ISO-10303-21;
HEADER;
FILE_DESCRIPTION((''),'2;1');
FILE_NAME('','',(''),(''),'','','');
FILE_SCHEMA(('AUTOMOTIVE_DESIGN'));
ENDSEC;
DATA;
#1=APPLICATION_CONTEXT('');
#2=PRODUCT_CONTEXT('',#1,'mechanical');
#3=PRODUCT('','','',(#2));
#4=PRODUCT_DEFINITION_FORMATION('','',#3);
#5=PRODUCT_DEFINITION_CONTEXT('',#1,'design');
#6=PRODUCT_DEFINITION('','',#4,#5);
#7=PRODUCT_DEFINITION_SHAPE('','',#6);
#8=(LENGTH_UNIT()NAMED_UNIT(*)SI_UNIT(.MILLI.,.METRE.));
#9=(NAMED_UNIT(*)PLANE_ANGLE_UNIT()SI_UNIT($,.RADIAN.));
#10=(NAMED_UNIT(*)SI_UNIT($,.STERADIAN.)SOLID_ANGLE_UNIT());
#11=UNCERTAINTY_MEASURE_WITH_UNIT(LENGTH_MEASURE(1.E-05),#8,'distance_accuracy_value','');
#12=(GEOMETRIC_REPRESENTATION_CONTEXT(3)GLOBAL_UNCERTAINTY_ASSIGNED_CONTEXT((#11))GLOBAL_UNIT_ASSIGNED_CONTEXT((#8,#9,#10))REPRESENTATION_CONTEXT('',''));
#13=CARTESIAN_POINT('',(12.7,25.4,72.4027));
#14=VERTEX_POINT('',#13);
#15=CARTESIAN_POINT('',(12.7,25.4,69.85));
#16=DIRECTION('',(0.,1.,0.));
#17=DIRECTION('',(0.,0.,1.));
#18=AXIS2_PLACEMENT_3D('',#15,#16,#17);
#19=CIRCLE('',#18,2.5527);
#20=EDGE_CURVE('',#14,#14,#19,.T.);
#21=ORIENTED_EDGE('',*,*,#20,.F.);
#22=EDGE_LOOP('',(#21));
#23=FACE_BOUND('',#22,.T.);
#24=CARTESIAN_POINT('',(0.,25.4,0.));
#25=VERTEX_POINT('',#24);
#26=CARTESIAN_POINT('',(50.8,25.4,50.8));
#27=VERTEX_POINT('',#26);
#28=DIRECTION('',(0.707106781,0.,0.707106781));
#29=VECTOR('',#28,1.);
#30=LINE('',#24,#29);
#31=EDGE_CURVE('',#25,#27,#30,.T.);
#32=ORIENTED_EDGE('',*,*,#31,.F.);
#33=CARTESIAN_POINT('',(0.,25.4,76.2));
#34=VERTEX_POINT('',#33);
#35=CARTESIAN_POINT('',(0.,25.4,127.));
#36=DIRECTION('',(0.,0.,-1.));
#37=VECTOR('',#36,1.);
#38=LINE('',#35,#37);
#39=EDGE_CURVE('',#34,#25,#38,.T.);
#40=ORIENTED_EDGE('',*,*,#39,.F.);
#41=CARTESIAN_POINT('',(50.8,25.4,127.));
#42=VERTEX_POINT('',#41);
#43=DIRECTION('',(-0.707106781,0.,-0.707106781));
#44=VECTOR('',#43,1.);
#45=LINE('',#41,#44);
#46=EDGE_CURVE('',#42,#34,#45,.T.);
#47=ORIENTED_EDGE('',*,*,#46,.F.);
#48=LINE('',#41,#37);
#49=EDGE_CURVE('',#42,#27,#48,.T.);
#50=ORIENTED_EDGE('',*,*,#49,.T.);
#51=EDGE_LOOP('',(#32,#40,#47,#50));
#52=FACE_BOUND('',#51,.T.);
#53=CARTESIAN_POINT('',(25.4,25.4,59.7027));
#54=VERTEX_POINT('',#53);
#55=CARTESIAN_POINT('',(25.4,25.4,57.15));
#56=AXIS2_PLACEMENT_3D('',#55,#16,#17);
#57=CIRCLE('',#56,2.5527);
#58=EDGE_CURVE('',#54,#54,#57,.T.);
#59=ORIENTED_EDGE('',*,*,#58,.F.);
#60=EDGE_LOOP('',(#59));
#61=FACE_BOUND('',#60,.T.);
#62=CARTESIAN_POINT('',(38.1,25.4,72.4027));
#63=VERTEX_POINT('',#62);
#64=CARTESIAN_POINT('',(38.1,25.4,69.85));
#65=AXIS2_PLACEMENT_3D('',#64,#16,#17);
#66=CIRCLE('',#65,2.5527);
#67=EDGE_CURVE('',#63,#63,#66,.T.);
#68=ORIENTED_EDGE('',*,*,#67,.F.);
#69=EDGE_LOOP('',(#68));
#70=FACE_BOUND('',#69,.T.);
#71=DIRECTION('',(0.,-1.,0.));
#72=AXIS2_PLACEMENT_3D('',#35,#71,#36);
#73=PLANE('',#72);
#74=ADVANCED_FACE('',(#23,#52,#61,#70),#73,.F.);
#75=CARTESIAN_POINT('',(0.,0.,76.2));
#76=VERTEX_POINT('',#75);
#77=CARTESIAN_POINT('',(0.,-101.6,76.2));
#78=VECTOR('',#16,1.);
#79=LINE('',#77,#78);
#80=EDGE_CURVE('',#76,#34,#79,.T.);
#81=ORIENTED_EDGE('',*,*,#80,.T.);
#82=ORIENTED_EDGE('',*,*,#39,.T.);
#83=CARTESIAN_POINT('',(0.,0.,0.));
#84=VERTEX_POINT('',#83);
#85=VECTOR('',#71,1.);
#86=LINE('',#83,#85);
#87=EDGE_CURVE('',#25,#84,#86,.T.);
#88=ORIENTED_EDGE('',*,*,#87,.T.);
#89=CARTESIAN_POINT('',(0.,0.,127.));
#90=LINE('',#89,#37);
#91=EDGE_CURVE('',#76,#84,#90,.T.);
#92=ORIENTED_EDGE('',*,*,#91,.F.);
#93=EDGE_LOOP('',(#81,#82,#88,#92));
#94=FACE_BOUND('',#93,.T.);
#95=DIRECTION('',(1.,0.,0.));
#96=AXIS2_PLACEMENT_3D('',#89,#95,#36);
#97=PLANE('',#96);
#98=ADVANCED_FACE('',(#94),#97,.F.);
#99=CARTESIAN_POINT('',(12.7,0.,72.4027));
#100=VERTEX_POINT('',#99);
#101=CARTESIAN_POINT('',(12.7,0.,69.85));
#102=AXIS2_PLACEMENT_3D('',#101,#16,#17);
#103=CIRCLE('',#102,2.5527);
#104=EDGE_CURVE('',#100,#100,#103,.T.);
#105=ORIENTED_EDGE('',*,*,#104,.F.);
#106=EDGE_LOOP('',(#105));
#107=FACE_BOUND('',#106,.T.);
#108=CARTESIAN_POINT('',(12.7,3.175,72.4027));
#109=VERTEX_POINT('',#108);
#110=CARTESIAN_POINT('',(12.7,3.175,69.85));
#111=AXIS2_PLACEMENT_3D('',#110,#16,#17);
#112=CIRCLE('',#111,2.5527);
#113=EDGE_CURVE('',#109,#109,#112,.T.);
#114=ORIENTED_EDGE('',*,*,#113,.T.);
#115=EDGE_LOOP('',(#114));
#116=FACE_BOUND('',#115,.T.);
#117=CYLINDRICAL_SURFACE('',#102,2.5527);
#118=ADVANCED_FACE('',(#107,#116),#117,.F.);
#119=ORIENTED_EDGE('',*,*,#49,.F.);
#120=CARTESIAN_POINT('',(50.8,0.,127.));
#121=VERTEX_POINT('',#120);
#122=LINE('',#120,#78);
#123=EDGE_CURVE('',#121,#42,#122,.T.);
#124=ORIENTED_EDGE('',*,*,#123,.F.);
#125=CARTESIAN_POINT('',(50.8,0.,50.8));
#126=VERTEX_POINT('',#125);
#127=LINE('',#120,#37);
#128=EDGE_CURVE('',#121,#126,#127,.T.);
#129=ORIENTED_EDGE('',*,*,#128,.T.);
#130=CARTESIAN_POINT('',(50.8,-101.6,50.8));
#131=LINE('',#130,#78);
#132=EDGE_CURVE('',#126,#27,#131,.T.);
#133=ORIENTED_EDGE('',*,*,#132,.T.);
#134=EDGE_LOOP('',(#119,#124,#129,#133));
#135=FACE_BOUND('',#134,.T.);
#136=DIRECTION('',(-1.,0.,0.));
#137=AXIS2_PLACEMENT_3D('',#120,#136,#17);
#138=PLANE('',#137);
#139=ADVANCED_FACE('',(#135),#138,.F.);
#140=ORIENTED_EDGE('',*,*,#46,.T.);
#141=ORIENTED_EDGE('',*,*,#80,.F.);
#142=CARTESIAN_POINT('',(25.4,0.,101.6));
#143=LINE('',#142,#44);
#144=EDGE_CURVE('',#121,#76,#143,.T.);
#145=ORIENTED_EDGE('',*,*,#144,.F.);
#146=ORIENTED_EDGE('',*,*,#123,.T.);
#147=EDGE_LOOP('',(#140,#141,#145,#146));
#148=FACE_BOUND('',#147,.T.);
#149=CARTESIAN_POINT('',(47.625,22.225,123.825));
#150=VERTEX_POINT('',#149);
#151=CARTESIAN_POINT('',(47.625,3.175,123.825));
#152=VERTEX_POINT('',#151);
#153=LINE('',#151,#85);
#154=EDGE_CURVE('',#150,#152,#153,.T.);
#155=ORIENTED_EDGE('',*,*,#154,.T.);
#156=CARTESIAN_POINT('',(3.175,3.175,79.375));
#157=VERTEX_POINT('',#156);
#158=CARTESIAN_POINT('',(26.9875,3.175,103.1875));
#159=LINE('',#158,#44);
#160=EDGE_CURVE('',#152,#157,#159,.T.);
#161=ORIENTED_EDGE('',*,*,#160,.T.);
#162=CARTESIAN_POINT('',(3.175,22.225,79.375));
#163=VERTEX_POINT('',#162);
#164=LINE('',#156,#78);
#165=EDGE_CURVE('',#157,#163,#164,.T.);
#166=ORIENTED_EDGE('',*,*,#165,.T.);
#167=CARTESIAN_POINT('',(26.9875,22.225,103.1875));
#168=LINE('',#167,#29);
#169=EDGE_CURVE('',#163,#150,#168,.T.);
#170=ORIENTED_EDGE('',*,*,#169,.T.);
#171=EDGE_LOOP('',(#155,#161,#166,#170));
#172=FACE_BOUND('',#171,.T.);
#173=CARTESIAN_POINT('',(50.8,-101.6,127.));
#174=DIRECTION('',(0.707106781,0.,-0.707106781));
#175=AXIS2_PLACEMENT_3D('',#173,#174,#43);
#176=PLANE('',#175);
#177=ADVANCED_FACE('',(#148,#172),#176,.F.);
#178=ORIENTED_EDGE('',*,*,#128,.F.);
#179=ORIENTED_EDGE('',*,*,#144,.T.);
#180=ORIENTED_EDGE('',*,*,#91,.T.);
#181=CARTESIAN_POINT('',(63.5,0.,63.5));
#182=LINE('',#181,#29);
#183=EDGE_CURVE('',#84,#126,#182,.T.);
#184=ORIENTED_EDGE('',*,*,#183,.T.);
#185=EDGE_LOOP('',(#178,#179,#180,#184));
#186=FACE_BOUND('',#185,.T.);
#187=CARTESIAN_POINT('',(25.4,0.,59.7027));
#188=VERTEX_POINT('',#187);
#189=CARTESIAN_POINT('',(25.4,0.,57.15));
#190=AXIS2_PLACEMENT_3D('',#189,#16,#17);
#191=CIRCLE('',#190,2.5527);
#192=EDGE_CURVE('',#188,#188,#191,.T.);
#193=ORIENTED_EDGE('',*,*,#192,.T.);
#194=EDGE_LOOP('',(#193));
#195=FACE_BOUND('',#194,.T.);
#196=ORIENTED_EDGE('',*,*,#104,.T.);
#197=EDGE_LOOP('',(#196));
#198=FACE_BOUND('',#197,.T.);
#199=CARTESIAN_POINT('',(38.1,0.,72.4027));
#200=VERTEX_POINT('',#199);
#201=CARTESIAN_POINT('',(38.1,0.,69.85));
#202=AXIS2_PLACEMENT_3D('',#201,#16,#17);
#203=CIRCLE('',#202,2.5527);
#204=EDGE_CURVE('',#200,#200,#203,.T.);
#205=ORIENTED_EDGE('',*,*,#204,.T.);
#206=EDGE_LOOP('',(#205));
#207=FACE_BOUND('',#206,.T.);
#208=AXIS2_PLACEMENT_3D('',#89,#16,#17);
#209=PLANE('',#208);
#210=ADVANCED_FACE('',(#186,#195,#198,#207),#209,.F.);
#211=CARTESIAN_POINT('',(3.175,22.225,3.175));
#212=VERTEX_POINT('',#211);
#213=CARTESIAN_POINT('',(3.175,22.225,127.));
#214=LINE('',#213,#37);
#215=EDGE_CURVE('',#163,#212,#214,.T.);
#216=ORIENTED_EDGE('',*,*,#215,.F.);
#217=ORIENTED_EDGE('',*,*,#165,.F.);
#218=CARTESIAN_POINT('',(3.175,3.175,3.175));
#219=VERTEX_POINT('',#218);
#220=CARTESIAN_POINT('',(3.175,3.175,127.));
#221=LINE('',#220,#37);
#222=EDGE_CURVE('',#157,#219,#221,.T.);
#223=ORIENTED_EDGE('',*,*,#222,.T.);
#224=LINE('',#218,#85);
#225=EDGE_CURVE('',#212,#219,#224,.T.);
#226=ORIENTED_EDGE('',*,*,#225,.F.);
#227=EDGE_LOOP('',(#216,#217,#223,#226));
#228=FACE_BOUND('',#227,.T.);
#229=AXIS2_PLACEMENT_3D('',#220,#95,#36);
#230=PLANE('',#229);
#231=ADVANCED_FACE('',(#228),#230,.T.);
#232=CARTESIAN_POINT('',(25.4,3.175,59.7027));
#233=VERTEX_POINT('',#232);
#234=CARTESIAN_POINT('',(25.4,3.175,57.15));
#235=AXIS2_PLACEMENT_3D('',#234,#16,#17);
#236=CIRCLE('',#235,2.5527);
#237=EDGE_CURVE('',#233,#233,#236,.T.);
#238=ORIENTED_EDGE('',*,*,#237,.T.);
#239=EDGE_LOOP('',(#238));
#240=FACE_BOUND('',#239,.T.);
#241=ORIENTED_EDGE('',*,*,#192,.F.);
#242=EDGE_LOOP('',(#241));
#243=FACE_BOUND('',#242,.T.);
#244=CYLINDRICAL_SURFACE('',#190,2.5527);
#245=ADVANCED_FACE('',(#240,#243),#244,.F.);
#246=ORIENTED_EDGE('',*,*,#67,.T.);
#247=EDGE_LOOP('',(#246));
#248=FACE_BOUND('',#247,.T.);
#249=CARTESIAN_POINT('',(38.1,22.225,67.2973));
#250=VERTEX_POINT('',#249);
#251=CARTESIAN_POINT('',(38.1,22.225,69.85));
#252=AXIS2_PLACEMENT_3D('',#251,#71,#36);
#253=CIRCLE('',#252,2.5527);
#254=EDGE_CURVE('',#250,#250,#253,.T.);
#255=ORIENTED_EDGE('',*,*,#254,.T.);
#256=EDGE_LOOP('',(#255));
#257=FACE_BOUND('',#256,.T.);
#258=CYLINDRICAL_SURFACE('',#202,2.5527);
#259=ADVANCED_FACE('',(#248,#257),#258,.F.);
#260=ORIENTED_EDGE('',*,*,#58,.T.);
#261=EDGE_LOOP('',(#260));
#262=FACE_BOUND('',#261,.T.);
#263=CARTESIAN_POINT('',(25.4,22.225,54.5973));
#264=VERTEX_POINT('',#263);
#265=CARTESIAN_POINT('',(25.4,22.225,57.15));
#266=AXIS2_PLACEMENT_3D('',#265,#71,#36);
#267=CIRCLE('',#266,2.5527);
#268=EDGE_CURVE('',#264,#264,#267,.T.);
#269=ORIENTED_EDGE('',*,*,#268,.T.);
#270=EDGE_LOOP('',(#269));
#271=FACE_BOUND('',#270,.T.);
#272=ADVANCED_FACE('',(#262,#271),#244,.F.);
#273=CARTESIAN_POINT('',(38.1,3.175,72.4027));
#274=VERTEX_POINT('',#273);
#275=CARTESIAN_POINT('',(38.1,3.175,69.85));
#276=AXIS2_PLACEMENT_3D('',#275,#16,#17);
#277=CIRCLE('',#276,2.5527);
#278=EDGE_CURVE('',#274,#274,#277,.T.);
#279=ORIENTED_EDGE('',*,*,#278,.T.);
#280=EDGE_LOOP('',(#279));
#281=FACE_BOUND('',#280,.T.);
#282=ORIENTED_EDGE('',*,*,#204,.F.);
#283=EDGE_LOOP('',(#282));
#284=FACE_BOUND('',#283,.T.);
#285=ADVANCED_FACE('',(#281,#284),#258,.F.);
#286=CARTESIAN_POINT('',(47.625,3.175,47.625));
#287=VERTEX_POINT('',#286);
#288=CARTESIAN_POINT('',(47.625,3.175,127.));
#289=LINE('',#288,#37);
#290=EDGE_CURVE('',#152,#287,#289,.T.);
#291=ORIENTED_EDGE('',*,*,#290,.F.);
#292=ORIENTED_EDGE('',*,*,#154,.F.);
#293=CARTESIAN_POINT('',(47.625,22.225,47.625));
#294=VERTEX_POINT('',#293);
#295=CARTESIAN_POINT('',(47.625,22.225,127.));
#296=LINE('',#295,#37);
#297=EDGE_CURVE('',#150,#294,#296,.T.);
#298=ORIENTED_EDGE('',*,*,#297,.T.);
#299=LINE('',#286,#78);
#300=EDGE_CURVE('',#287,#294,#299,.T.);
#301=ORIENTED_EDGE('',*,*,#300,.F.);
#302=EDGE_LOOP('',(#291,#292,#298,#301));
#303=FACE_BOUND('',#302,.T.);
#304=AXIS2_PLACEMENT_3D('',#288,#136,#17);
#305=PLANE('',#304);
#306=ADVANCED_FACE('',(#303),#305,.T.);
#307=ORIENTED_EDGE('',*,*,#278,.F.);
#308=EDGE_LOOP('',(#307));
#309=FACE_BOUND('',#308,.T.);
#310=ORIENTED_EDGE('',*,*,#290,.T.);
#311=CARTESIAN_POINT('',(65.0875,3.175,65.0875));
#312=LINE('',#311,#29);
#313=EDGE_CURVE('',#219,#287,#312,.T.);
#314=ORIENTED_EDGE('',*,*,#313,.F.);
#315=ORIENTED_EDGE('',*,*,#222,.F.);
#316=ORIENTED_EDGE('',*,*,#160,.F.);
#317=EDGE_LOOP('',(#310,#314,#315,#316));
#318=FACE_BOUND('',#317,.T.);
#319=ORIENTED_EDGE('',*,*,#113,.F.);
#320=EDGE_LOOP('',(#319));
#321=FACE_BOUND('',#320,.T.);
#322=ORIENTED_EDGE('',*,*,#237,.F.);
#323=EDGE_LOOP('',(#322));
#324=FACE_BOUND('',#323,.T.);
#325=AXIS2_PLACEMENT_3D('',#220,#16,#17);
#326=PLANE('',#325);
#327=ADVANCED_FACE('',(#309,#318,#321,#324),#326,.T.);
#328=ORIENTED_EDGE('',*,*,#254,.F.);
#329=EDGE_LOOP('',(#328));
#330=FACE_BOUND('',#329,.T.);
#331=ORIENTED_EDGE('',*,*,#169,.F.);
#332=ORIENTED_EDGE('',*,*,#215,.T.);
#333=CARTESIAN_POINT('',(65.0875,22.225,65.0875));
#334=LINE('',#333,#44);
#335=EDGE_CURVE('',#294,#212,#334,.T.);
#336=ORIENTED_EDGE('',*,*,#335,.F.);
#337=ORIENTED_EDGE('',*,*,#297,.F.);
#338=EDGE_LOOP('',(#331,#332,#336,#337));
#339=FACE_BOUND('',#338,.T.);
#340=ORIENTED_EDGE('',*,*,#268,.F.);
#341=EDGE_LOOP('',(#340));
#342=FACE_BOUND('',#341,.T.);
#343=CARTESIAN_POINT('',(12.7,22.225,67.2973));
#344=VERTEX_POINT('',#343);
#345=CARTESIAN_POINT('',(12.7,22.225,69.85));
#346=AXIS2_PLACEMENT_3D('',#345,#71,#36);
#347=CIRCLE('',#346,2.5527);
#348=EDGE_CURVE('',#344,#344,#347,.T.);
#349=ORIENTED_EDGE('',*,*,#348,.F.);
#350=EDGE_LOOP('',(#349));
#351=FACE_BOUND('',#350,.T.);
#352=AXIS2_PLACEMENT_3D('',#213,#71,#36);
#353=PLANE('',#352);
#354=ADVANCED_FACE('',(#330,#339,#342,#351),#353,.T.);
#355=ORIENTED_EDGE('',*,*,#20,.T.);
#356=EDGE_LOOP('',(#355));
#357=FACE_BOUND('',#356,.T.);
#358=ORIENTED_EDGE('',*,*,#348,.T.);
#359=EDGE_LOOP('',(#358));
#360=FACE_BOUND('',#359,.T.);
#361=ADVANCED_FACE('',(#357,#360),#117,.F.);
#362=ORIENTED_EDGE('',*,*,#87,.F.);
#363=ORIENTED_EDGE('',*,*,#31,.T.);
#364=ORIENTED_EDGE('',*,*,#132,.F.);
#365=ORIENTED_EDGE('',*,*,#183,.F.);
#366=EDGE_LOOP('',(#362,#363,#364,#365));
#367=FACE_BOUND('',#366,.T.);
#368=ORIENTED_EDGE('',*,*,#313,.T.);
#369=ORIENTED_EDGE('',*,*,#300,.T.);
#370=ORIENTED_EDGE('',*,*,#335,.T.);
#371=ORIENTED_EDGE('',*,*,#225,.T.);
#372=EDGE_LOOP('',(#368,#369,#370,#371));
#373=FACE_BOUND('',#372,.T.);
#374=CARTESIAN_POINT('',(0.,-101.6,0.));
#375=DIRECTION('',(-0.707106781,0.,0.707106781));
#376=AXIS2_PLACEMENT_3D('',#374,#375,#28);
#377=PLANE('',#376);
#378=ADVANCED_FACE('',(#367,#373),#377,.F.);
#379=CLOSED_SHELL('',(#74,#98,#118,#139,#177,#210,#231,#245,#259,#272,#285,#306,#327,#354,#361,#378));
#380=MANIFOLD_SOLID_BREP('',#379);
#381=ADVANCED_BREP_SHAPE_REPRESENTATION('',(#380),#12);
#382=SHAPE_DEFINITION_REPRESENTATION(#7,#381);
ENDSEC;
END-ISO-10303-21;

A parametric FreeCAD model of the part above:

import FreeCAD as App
import Part
import Sketcher
Q = App.Units.Quantity

doc = App.newDocument("Part")
body = doc.addObject("PartDesign::Body", "Body")

# Sketch on XY plane
sketch1 = body.newObject("Sketcher::SketchObject", "Sketch")
sketch1.AttachmentSupport = (doc.getObject("XY_Plane"), [""])
sketch1.MapMode = "FlatFace"
sketch1.addGeometry([
    Part.LineSegment(App.Vector(0, 25.4, 0), App.Vector(0, 0, 0)),  # 0
    Part.LineSegment(App.Vector(0, 0, 0), App.Vector(50.8, 0, 0)),  # 1
    Part.LineSegment(App.Vector(50.8, 0, 0), App.Vector(50.8, 25.4, 0)),  # 2
    Part.LineSegment(App.Vector(50.8, 25.4, 0), App.Vector(0, 25.4, 0)),  # 3
    Part.LineSegment(App.Vector(47.625, 3.175, 0), App.Vector(3.175, 3.175, 0)),  # 4
    Part.LineSegment(App.Vector(3.175, 3.175, 0), App.Vector(3.175, 22.225, 0)),  # 5
    Part.LineSegment(App.Vector(3.175, 22.225, 0), App.Vector(47.625, 22.225, 0)),  # 6
    Part.LineSegment(App.Vector(47.625, 22.225, 0), App.Vector(47.625, 3.175, 0)),  # 7
], False)
sketch1.addConstraint([
    Sketcher.Constraint("Coincident", 0, 2, 1, 1),
    Sketcher.Constraint("Coincident", 1, 2, 2, 1),
    Sketcher.Constraint("Coincident", 2, 2, 3, 1),
    Sketcher.Constraint("Coincident", 3, 2, 0, 1),
    Sketcher.Constraint("Coincident", 4, 2, 5, 1),
    Sketcher.Constraint("Coincident", 5, 2, 6, 1),
    Sketcher.Constraint("Coincident", 6, 2, 7, 1),
    Sketcher.Constraint("Coincident", 7, 2, 4, 1),
    Sketcher.Constraint("Vertical", 0),
    Sketcher.Constraint("Horizontal", 1),
    Sketcher.Constraint("Vertical", 2),
    Sketcher.Constraint("Horizontal", 3),
    Sketcher.Constraint("Horizontal", 4),
    Sketcher.Constraint("Vertical", 5),
    Sketcher.Constraint("Horizontal", 6),
    Sketcher.Constraint("Vertical", 7),
    Sketcher.Constraint("Coincident", 0, 2, -1, 1),
    Sketcher.Constraint("DistanceX", 1, 1, 1, 2, Q("2 in")),
    Sketcher.Constraint("DistanceY", 0, 2, 0, 1, Q("1 in")),
    Sketcher.Constraint("DistanceX", 4, 2, 4, 1, Q("1.75 in")),
    Sketcher.Constraint("DistanceY", 5, 1, 5, 2, Q("0.75 in")),
    Sketcher.Constraint("DistanceX", -1, 1, 4, 2, Q("0.125 in")),
    Sketcher.Constraint("DistanceY", -1, 1, 4, 2, Q("0.125 in")),
])
pad1 = body.newObject("PartDesign::Pad", "Pad")
pad1.Profile = sketch1
pad1.Length = Q("5 in")

# Sketch on XZ plane
sketch2 = body.newObject("Sketcher::SketchObject", "Sketch001")
sketch2.AttachmentSupport = (doc.getObject("XZ_Plane"), [""])
sketch2.MapMode = "FlatFace"
sketch2.AttachmentOffset = App.Placement(App.Vector(0, 0, -1 * 25.4), App.Rotation())
sketch2.addGeometry([
    Part.LineSegment(App.Vector(0, 0, 0), App.Vector(50.8, 50.8, 0)),  # 0
    Part.LineSegment(App.Vector(50.8, 50.8, 0), App.Vector(50.8, 0, 0)),  # 1
    Part.LineSegment(App.Vector(50.8, 0, 0), App.Vector(0, 0, 0)),  # 2
    Part.LineSegment(App.Vector(0, 76.2, 0), App.Vector(0, 127, 0)),  # 3
    Part.LineSegment(App.Vector(0, 127, 0), App.Vector(50.8, 127, 0)),  # 4
    Part.LineSegment(App.Vector(50.8, 127, 0), App.Vector(0, 76.2, 0)),  # 5
], False)
sketch2.addConstraint([
    Sketcher.Constraint("Coincident", 0, 2, 1, 1),
    Sketcher.Constraint("Coincident", 1, 2, 2, 1),
    Sketcher.Constraint("Coincident", 2, 2, 0, 1),
    Sketcher.Constraint("Coincident", 3, 2, 4, 1),
    Sketcher.Constraint("Coincident", 4, 2, 5, 1),
    Sketcher.Constraint("Coincident", 5, 2, 3, 1),
    Sketcher.Constraint("Vertical", 1),
    Sketcher.Constraint("Horizontal", 2),
    Sketcher.Constraint("Vertical", 3),
    Sketcher.Constraint("Horizontal", 4),
    Sketcher.Constraint("Coincident", 2, 2, -1, 1),
    Sketcher.Constraint("PointOnObject", 3, 2, -2),
    Sketcher.Constraint("Parallel", 0, 5),
    Sketcher.Constraint("Vertical", 1, 2, 4, 2),
    Sketcher.Constraint("Equal", 4, 1),
    Sketcher.Constraint("DistanceX", 2, 2, 2, 1, Q("2 in")),
    Sketcher.Constraint("DistanceY", -1, 1, 3, 2, Q("5 in")),
])
pocket1 = body.newObject("PartDesign::Pocket", "Pocket")
pocket1.Profile = sketch2
pocket1.Length = Q("5 in")
pocket1.Reversed = True

# Sketch on XZ plane
sketch3 = body.newObject("Sketcher::SketchObject", "Sketch002")
sketch3.AttachmentSupport = (doc.getObject("XZ_Plane"), [""])
sketch3.MapMode = "FlatFace"
sketch3.AttachmentOffset = App.Placement(App.Vector(0, 0, -1 * 25.4), App.Rotation())
sketch3.addGeometry([
    Part.Circle(App.Vector(12.7, 69.85, 0), App.Vector(0, 0, 1), 2.5527),
    Part.Circle(App.Vector(38.1, 69.85, 0), App.Vector(0, 0, 1), 2.5527),
    Part.Circle(App.Vector(25.4, 57.15, 0), App.Vector(0, 0, 1), 2.5527),
], False)
sketch3.addConstraint([
    Sketcher.Constraint("Equal", 0, 1),
    Sketcher.Constraint("Equal", 1, 2),
    Sketcher.Constraint("Horizontal", 0, 3, 1, 3),
    Sketcher.Constraint("Diameter", 0, Q("0.201 in")),
    Sketcher.Constraint("DistanceX", -1, 1, 2, 3, Q("1 in")),
    Sketcher.Constraint("DistanceX", 0, 3, 1, 3, Q("1 in")),
    Sketcher.Constraint("DistanceX", -1, 1, 0, 3, Q("0.5 in")),
    Sketcher.Constraint("DistanceY", 2, 3, 0, 3, Q("0.5 in")),
    Sketcher.Constraint("DistanceY", -1, 1, 0, 3, Q("2.75 in")),
])
pocket2 = body.newObject("PartDesign::Pocket", "Pocket001")
pocket2.Profile = sketch3
pocket2.Length = Q("1 in")
pocket2.Reversed = True

doc.recompute()
